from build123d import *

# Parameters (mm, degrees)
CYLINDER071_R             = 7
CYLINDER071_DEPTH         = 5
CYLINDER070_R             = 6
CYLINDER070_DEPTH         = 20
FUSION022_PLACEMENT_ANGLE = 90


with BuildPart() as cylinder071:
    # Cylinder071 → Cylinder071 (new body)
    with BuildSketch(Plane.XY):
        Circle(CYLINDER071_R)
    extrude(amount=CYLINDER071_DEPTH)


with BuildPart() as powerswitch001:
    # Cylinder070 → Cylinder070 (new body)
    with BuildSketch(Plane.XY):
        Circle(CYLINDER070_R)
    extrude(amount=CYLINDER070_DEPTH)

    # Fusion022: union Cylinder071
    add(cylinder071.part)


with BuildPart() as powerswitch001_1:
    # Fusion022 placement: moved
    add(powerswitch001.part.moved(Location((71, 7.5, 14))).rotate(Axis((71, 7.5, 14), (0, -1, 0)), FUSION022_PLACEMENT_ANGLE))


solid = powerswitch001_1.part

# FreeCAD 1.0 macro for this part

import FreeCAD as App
import Part
import Sketcher
from FreeCAD import Vector
Q = App.Units.Quantity

doc = App.newDocument("Part")
body = doc.addObject("PartDesign::Body", "Body")

# Sketch on XY plane
sketch1 = body.newObject("Sketcher::SketchObject", "Sketch")
sketch1.AttachmentSupport = (doc.getObject("XY_Plane"), [""])
sketch1.MapMode = "FlatFace"
sketch1.addGeometry(Part.Circle(Vector(0, 0, 0), Vector(0, 0, 1), 7), False)
sketch1.addConstraint([
    Sketcher.Constraint("Coincident", 0, 3, -1, 1),
    Sketcher.Constraint("Diameter", 0, Q("14 mm")),
])
pad1 = body.newObject("PartDesign::Pad", "Pad")
pad1.Profile = sketch1
pad1.Length = 5
body2 = doc.addObject("PartDesign::Body", "Body001")

# Sketch on XY plane
sketch2 = body2.newObject("Sketcher::SketchObject", "Sketch001")
sketch2.AttachmentSupport = (doc.getObject("XY_Plane001"), [""])
sketch2.MapMode = "FlatFace"
sketch2.addGeometry(Part.Circle(Vector(0, 0, 0), Vector(0, 0, 1), 6), False)
sketch2.addConstraint([
    Sketcher.Constraint("Coincident", 0, 3, -1, 1),
    Sketcher.Constraint("Diameter", 0, Q("12 mm")),
])
pad2 = body2.newObject("PartDesign::Pad", "Pad001")
pad2.Profile = sketch2
pad2.Length = 20
doc.recompute()

boolean = body2.newObject("PartDesign::Boolean", "Boolean")
boolean.Type = "Fuse"
boolean.addObjects([body])
body3 = doc.addObject("PartDesign::Body", "Body002")
doc.recompute()

body2.Placement = App.Placement(Vector(71, 7.5, 14), App.Rotation(Vector(0, -1, 0), 90))
boolean2 = body3.newObject("PartDesign::Boolean", "Boolean001")
boolean2.Type = "Fuse"
boolean2.addObjects([body2])

doc.recompute()
